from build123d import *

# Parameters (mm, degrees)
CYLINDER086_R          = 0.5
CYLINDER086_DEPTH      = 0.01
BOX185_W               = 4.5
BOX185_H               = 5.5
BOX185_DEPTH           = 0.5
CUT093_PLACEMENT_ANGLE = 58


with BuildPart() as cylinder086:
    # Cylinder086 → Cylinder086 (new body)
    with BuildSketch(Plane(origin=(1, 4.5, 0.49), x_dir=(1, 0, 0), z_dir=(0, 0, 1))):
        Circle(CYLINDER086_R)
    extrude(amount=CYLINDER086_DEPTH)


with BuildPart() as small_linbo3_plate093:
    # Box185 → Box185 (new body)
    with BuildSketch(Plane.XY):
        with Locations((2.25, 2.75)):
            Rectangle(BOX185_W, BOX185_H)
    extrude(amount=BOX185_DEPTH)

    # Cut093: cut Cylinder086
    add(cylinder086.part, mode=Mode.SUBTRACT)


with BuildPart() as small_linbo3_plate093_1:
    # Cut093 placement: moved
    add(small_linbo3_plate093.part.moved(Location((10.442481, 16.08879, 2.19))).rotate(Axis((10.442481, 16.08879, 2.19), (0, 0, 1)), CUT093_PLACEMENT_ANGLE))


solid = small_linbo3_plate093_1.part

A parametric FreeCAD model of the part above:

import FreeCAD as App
import Part
import Sketcher

V = App.Vector
Q = App.Units.Quantity


def add_polygon(sketch, points):
    """Adds a closed chain of lines whose ends are joined by coincident constraints."""
    first, n = sketch.GeometryCount, len(points)
    for a, b in zip(points, points[1:] + points[:1]):
        sketch.addGeometry(Part.LineSegment(App.Vector(*a, 0), App.Vector(*b, 0)), False)
    for i in range(n):
        sketch.addConstraint(Sketcher.Constraint("Coincident", first + i, 2, first + (i + 1) % n, 1))

doc = App.newDocument("Part")
body = doc.addObject("PartDesign::Body", "Body")

# Sketch on XY plane
sketch1 = doc.addObject("Sketcher::SketchObject", "Sketch")
body.addObject(sketch1)
sketch1.AttachmentSupport = (doc.XY_Plane, [""])
sketch1.MapMode = "FlatFace"
sketch1.AttachmentOffset = App.Placement(V(0, 0, 0.49), App.Rotation())
sketch1.addGeometry(Part.Circle(V(1, 4.5, 0), V(0, 0, 1), 0.5), False)
sketch1.addConstraint(Sketcher.Constraint("Diameter", 0, Q("1 mm")))
sketch1.addConstraint(Sketcher.Constraint("DistanceX", -1, 1, 0, 3, Q("1 mm")))
sketch1.addConstraint(Sketcher.Constraint("DistanceY", -1, 1, 0, 3, Q("4.5 mm")))
pad1 = doc.addObject("PartDesign::Pad", "Pad")
body.addObject(pad1)
pad1.Profile = sketch1
pad1.Length = 0.01
body2 = doc.addObject("PartDesign::Body", "Body001")

# Sketch on XY plane
sketch2 = doc.addObject("Sketcher::SketchObject", "Sketch001")
body2.addObject(sketch2)
sketch2.AttachmentSupport = (doc.getObject("XY_Plane001"), [""])
sketch2.MapMode = "FlatFace"
add_polygon(sketch2, [(0, 5.5), (0, 0), (4.5, 0), (4.5, 5.5)])  # lines 0-3
sketch2.addConstraint(Sketcher.Constraint("Vertical", 0))
sketch2.addConstraint(Sketcher.Constraint("Horizontal", 1))
sketch2.addConstraint(Sketcher.Constraint("Vertical", 2))
sketch2.addConstraint(Sketcher.Constraint("Horizontal", 3))
sketch2.addConstraint(Sketcher.Constraint("Coincident", 0, 2, -1, 1))
sketch2.addConstraint(Sketcher.Constraint("DistanceX", 1, 1, 1, 2, Q("4.5 mm")))
sketch2.addConstraint(Sketcher.Constraint("DistanceY", 0, 2, 0, 1, Q("5.5 mm")))
pad2 = doc.addObject("PartDesign::Pad", "Pad001")
body2.addObject(pad2)
pad2.Profile = sketch2
pad2.Length = 0.5
doc.recompute()

boolean = doc.addObject("PartDesign::Boolean", "Boolean")
body2.addObject(boolean)
boolean.Type = "Cut"
boolean.addObjects([body])
body3 = doc.addObject("PartDesign::Body", "Body002")
doc.recompute()

body2.Placement = App.Placement(V(10.442481, 16.08879, 2.19), App.Rotation(V(0, 0, 1), 58))
boolean2 = doc.addObject("PartDesign::Boolean", "Boolean001")
body3.addObject(boolean2)
boolean2.Type = "Fuse"
boolean2.addObjects([body2])

doc.recompute()
